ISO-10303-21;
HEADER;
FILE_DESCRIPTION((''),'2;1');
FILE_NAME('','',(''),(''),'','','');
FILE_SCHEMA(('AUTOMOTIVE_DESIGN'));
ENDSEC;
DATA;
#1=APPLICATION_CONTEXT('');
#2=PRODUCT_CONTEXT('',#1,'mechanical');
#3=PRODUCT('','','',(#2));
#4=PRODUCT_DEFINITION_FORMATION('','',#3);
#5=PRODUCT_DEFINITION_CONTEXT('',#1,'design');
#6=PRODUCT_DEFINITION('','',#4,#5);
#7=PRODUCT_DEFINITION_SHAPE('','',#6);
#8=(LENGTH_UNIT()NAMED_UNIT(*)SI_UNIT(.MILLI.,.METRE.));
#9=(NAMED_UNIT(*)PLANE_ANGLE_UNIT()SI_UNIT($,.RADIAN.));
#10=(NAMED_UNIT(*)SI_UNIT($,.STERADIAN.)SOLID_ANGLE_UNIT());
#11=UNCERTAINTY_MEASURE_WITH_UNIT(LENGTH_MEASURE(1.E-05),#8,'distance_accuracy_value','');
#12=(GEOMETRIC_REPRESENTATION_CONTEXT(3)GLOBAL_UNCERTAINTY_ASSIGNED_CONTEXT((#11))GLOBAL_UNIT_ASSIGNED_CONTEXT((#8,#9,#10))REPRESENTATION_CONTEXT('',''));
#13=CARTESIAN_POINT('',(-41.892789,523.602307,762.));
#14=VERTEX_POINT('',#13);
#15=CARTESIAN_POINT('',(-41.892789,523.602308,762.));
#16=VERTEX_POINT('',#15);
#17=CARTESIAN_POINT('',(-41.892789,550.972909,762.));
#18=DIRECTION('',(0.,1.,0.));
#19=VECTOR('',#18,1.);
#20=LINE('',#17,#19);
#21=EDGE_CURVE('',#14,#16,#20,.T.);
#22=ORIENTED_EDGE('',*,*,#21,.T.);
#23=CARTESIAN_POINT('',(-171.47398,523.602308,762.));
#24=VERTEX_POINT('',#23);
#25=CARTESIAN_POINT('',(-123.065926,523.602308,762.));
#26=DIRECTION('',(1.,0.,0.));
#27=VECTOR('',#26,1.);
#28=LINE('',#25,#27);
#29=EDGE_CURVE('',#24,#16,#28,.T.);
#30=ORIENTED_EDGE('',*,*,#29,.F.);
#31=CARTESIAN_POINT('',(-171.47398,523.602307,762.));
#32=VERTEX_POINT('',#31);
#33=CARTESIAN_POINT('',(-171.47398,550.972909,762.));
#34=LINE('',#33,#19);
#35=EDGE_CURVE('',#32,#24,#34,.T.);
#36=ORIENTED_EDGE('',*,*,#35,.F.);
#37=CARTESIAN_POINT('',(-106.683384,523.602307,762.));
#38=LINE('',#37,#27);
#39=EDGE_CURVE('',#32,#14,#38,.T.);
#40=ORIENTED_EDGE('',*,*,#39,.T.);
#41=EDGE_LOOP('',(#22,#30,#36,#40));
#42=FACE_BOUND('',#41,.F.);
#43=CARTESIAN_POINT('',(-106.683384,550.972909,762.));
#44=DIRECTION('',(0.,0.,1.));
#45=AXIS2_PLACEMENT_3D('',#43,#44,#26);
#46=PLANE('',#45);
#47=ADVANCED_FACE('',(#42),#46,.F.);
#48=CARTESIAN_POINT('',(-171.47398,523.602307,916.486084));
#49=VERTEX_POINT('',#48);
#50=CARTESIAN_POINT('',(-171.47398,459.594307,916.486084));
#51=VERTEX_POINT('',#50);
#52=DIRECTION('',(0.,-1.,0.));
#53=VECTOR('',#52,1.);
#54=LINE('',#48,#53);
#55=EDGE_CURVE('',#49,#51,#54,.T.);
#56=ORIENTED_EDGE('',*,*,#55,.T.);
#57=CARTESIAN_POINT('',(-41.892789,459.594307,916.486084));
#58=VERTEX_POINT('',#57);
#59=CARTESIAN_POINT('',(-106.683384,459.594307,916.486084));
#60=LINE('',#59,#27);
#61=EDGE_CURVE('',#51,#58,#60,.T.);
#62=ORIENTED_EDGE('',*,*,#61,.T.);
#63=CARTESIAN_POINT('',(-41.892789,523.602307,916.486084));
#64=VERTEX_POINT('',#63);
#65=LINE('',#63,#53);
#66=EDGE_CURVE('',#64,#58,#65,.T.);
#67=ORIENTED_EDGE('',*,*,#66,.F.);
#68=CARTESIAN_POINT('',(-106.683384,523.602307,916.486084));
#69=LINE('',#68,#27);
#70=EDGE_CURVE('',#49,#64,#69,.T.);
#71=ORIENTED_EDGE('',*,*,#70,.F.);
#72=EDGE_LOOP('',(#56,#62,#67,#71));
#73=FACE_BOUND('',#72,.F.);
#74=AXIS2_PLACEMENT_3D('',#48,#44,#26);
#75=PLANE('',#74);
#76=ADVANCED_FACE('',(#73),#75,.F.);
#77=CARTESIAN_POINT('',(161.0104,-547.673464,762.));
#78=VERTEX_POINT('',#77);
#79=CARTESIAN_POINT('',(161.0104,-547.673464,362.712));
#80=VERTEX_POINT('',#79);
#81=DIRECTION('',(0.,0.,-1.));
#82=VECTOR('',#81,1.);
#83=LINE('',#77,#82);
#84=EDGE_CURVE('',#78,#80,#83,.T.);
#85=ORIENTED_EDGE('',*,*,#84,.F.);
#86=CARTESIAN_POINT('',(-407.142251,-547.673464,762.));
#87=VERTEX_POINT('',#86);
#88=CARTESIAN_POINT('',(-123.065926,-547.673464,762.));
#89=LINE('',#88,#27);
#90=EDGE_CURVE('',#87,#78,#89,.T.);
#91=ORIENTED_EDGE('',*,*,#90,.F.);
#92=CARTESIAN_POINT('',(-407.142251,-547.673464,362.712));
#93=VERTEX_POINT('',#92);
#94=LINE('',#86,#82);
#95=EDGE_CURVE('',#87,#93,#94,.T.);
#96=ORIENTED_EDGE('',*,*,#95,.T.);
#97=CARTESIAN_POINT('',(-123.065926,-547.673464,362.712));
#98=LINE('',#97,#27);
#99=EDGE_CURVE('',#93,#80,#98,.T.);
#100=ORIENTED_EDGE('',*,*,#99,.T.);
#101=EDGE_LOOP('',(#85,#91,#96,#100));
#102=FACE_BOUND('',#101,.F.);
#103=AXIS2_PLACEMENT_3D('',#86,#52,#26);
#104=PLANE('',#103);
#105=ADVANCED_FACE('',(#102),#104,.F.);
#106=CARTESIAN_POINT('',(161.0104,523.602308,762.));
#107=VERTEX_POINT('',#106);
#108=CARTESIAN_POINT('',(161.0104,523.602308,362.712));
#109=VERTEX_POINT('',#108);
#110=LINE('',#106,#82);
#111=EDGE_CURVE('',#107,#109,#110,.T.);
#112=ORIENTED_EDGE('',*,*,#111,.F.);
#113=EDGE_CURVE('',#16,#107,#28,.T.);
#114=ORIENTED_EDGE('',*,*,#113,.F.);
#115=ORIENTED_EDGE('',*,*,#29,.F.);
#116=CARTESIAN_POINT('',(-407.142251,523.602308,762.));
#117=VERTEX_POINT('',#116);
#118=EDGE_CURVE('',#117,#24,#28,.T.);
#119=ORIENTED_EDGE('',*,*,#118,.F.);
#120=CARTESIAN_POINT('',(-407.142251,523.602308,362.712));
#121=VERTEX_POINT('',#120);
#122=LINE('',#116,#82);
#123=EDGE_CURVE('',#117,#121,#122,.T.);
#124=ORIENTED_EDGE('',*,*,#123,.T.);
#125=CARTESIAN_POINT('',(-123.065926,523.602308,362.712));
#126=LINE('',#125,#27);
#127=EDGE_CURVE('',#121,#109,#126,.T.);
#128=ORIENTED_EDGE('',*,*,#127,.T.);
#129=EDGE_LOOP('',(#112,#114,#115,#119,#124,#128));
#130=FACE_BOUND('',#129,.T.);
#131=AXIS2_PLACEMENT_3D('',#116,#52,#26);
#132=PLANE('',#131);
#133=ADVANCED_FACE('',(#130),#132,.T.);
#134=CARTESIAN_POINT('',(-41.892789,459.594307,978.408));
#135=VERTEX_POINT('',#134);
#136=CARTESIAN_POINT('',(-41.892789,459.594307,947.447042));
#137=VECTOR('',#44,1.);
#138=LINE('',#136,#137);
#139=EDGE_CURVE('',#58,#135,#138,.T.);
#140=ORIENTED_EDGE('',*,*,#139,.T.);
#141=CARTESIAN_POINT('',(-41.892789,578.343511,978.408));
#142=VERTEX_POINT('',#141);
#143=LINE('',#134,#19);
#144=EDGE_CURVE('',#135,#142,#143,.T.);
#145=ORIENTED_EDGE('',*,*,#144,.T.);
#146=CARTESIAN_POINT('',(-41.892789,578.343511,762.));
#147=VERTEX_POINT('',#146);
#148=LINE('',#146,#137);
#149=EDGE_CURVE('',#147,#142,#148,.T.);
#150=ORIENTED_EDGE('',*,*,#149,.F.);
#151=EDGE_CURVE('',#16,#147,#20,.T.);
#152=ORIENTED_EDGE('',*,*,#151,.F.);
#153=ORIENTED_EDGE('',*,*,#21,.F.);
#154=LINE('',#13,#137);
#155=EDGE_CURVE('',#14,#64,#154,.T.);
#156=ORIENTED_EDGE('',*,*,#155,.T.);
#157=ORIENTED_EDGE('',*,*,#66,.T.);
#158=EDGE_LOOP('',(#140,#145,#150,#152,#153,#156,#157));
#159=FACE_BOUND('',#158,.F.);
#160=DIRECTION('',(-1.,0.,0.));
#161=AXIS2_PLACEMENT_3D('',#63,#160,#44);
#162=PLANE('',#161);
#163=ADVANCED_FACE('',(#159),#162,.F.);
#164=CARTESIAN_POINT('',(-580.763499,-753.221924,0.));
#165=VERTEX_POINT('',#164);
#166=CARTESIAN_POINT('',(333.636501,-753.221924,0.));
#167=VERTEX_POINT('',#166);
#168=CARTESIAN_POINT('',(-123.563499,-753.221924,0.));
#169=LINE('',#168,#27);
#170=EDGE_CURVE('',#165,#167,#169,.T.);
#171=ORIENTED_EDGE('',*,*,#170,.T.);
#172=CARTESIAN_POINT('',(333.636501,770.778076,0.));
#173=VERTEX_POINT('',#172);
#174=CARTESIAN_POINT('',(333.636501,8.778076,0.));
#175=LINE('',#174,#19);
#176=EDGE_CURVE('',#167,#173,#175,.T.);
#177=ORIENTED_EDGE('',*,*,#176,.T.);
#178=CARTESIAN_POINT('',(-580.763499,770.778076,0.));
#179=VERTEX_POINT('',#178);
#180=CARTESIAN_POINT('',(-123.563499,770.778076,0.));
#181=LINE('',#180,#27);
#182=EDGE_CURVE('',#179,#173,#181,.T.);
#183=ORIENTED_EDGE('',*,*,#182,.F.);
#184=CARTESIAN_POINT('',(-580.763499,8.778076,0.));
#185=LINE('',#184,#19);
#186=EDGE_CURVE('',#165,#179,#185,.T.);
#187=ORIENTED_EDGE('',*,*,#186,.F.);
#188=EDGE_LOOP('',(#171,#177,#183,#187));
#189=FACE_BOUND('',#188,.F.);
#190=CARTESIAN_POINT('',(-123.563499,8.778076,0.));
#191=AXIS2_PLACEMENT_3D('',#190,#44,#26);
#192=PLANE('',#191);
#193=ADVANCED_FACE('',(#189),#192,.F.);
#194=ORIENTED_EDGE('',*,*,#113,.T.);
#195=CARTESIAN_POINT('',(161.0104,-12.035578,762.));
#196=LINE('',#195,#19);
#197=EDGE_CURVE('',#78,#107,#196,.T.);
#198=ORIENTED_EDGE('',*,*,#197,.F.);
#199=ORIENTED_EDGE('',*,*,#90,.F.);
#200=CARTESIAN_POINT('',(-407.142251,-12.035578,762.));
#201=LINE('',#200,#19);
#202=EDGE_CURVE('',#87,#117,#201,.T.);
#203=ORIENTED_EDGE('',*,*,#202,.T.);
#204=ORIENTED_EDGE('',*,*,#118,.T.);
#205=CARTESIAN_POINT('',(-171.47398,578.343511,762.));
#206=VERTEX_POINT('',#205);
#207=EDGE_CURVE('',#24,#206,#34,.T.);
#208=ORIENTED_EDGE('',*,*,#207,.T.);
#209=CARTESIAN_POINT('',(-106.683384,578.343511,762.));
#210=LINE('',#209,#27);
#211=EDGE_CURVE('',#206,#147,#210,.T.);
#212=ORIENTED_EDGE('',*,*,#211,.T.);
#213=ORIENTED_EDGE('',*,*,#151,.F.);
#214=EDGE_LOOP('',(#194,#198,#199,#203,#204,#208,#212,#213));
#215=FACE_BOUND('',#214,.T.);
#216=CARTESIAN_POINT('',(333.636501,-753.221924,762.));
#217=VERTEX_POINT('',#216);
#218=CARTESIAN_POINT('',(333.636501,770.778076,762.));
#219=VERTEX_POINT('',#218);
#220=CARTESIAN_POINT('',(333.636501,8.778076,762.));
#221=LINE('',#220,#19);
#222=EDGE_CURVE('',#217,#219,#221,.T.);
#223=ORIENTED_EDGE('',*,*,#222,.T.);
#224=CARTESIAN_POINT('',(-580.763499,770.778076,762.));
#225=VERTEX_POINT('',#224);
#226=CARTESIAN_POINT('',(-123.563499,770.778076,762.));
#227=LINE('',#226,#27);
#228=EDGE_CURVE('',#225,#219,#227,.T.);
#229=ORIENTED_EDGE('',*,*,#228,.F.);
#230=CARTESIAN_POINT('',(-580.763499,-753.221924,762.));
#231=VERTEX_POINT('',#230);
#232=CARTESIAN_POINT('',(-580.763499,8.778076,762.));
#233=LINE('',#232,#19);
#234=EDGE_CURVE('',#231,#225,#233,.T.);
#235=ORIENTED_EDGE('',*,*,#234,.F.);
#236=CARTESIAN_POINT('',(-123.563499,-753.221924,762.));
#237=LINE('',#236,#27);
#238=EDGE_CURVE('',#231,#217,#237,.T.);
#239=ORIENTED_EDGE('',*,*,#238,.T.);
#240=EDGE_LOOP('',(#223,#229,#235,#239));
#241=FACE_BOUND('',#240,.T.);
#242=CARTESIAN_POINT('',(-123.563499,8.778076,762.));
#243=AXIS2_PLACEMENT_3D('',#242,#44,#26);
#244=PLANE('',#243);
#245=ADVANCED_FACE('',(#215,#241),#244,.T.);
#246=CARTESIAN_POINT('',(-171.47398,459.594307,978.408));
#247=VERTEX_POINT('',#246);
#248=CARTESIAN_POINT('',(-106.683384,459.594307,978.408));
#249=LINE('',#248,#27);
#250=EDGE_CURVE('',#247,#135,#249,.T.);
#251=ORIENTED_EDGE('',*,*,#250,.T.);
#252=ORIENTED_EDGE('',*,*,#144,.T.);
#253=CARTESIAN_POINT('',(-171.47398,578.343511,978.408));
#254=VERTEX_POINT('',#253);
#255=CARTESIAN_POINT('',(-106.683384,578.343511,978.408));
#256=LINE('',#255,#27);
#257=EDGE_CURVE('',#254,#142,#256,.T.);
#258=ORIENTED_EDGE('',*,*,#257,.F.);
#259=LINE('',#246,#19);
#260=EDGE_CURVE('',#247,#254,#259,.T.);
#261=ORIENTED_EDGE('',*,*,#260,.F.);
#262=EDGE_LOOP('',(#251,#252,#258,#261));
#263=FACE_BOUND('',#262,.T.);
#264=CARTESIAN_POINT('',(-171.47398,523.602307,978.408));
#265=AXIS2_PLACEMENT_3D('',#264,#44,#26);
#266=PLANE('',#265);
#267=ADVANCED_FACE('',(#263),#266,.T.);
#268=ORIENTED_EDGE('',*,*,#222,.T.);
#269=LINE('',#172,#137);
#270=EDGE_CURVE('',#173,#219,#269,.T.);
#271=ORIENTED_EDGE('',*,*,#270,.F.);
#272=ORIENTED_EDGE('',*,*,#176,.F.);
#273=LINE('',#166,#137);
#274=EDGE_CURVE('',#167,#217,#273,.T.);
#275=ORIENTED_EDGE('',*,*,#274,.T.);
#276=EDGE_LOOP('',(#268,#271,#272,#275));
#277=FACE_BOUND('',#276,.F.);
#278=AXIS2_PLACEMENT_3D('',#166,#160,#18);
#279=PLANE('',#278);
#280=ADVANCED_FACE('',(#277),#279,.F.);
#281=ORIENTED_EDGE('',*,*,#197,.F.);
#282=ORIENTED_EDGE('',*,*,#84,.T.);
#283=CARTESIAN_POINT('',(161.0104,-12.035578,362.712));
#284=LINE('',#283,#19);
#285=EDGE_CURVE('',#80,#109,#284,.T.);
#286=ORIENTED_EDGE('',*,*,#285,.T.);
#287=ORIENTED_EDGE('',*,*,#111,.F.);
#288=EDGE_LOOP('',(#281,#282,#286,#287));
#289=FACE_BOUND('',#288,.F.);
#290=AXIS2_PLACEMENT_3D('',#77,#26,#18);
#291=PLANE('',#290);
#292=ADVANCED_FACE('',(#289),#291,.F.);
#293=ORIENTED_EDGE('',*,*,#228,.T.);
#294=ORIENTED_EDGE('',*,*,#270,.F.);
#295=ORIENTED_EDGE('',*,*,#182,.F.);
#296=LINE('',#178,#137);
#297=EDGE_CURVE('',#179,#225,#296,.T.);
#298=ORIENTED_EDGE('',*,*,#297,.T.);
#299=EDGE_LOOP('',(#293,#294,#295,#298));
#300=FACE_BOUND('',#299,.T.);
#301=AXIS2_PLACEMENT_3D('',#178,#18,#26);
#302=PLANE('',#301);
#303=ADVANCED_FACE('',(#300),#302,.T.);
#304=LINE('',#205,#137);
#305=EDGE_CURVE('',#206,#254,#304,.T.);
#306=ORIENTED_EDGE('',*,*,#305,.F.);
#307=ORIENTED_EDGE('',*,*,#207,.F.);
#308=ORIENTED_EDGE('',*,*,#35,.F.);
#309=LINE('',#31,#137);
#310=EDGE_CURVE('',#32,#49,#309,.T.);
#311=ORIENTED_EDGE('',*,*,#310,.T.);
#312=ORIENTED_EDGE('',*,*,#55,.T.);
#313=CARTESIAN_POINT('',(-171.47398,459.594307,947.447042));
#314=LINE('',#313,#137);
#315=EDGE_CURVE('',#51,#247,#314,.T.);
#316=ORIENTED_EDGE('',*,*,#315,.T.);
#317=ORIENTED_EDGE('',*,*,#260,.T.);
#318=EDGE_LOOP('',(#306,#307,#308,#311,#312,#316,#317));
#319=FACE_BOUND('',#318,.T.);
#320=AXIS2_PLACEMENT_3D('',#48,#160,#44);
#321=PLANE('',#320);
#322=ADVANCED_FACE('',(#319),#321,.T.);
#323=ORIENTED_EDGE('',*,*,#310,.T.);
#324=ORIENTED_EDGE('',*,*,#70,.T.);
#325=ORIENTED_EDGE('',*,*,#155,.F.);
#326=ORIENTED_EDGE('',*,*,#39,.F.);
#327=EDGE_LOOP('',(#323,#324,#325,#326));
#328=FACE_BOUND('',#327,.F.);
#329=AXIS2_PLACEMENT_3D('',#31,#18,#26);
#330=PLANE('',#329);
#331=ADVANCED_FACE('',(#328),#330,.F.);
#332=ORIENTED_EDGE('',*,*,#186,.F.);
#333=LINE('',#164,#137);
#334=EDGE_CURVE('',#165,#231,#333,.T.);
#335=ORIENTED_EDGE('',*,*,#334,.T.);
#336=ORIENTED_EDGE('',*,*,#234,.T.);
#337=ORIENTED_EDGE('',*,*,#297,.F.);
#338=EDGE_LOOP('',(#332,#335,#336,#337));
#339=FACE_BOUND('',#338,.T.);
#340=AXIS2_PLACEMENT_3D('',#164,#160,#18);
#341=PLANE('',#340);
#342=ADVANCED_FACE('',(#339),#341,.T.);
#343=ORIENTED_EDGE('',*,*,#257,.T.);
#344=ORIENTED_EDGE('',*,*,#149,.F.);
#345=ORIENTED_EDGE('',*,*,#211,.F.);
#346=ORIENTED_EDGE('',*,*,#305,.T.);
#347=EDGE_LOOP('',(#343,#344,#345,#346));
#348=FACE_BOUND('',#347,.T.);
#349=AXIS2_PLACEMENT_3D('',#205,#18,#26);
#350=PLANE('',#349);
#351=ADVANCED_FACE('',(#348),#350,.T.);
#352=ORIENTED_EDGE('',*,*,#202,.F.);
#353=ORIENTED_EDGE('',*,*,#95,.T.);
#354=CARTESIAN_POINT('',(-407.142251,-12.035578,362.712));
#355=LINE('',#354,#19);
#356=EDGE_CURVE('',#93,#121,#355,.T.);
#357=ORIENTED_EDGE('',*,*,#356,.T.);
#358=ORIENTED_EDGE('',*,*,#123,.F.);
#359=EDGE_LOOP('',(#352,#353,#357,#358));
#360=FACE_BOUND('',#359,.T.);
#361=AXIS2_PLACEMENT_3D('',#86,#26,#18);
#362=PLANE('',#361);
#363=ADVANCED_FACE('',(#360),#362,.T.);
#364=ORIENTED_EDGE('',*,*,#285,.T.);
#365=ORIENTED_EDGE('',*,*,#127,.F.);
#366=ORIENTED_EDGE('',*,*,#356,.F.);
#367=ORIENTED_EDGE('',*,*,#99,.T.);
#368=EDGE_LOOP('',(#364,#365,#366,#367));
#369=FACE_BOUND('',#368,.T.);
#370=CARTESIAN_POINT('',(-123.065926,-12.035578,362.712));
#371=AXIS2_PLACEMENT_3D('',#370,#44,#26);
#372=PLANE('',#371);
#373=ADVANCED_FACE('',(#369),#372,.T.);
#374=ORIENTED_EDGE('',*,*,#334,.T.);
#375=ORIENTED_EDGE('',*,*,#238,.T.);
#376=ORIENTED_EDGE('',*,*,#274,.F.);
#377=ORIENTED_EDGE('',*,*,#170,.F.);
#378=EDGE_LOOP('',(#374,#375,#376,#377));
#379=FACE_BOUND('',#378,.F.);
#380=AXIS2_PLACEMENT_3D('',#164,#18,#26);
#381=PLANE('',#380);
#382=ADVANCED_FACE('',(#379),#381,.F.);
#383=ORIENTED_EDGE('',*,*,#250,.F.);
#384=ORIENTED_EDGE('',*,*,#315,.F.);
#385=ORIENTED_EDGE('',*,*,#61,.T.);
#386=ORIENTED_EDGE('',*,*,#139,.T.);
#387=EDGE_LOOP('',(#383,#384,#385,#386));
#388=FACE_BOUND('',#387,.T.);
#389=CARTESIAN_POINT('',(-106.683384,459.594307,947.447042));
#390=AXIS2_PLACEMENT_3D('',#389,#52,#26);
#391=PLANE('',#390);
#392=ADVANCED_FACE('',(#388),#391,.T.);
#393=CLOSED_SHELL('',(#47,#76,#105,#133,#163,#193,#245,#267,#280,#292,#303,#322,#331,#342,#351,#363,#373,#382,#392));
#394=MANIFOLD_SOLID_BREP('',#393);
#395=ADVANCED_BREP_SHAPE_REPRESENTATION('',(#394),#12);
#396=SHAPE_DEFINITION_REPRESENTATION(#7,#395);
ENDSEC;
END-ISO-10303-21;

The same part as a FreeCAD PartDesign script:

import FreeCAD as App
import Part
import Sketcher
Q = App.Units.Quantity


def add_polygon(sketch, points):
    """Adds a closed chain of lines whose ends are joined by coincident constraints."""
    first, n = sketch.GeometryCount, len(points)
    for a, b in zip(points, points[1:] + points[:1]):
        sketch.addGeometry(Part.LineSegment(App.Vector(*a, 0), App.Vector(*b, 0)), False)
    for i in range(n):
        sketch.addConstraint(Sketcher.Constraint("Coincident", first + i, 2, first + (i + 1) % n, 1))

doc = App.newDocument("Part")
body = doc.addObject("PartDesign::Body", "Body")

# Sketch on XY plane
sketch1 = doc.addObject("Sketcher::SketchObject", "Sketch")
body.addObject(sketch1)
sketch1.AttachmentSupport = (doc.XY_Plane, [""])
sketch1.MapMode = "FlatFace"
add_polygon(sketch1, [(-581, 771), (-581, -753), (334, -753), (334, 771)])  # lines 0-3
sketch1.addConstraint([
    Sketcher.Constraint("Vertical", 0),
    Sketcher.Constraint("Horizontal", 1),
    Sketcher.Constraint("Vertical", 2),
    Sketcher.Constraint("Horizontal", 3),
    Sketcher.Constraint("DistanceX", 1, 1, 1, 2, Q("36 in")),
    Sketcher.Constraint("DistanceY", 0, 2, 0, 1, Q("60 in")),
    Sketcher.Constraint("DistanceX", 0, 2, -1, 1, Q("580.763499 mm")),
    Sketcher.Constraint("DistanceY", 0, 2, -1, 1, Q("753.221924 mm")),
])
pad1 = doc.addObject("PartDesign::Pad", "Pad")
body.addObject(pad1)
pad1.Profile = sketch1
pad1.Length = Q("30 in")

# Sketch on XY plane
sketch2 = doc.addObject("Sketcher::SketchObject", "Sketch001")
body.addObject(sketch2)
sketch2.AttachmentSupport = (doc.XY_Plane, [""])
sketch2.MapMode = "FlatFace"
sketch2.AttachmentOffset = App.Placement(App.Vector(0, 0, 30 * 25.4), App.Rotation())
add_polygon(sketch2, [(-407, 524), (-407, -548), (161, -548), (161, 524)])  # lines 0-3
sketch2.addConstraint([
    Sketcher.Constraint("Vertical", 0),
    Sketcher.Constraint("Horizontal", 1),
    Sketcher.Constraint("Vertical", 2),
    Sketcher.Constraint("Horizontal", 3),
    Sketcher.Constraint("DistanceX", 1, 1, 1, 2, Q("568.152651 mm")),
    Sketcher.Constraint("DistanceY", 0, 2, 0, 1, Q("1071.275771 mm")),
    Sketcher.Constraint("DistanceX", -1, 1, 1, 2, Q("161.0104 mm")),
    Sketcher.Constraint("DistanceY", 0, 2, -1, 1, Q("547.673464 mm")),
])
pocket1 = doc.addObject("PartDesign::Pocket", "Pocket")
body.addObject(pocket1)
pocket1.Profile = sketch2
pocket1.Length = Q("15.72 in")

# Sketch on XY plane
sketch3 = doc.addObject("Sketcher::SketchObject", "Sketch002")
body.addObject(sketch3)
sketch3.AttachmentSupport = (doc.XY_Plane, [""])
sketch3.MapMode = "FlatFace"
sketch3.AttachmentOffset = App.Placement(App.Vector(0, 0, 30 * 25.4), App.Rotation())
add_polygon(sketch3, [(-171, 578), (-171, 524), (-42, 524), (-42, 578)])  # lines 0-3
sketch3.addConstraint([
    Sketcher.Constraint("Vertical", 0),
    Sketcher.Constraint("Horizontal", 1),
    Sketcher.Constraint("Vertical", 2),
    Sketcher.Constraint("Horizontal", 3),
    Sketcher.Constraint("DistanceX", 1, 1, 1, 2, Q("129.581191 mm")),
    Sketcher.Constraint("DistanceY", 0, 2, 0, 1, Q("54.741204 mm")),
    Sketcher.Constraint("DistanceX", 0, 2, -1, 1, Q("171.47398 mm")),
    Sketcher.Constraint("DistanceY", -1, 1, 2, 2, Q("578.343511 mm")),
])
pad2 = doc.addObject("PartDesign::Pad", "Pad001")
body.addObject(pad2)
pad2.Profile = sketch3
pad2.Length = Q("8.52 in")

# Sketch on XZ plane
sketch4 = doc.addObject("Sketcher::SketchObject", "Sketch003")
body.addObject(sketch4)
sketch4.AttachmentSupport = (doc.XZ_Plane, [""])
sketch4.MapMode = "FlatFace"
sketch4.AttachmentOffset = App.Placement(App.Vector(0, 0, -523.602307), App.Rotation())
add_polygon(sketch4, [(-171, 978), (-171, 916), (-42, 916), (-42, 978)])  # lines 0-3
sketch4.addConstraint([
    Sketcher.Constraint("Vertical", 0),
    Sketcher.Constraint("Horizontal", 1),
    Sketcher.Constraint("Vertical", 2),
    Sketcher.Constraint("Horizontal", 3),
    Sketcher.Constraint("DistanceY", -1, 1, 2, 2, Q("38.52 in")),
    Sketcher.Constraint("DistanceX", 1, 1, 1, 2, Q("129.581191 mm")),
    Sketcher.Constraint("DistanceY", 0, 2, 0, 1, Q("61.921916 mm")),
    Sketcher.Constraint("DistanceX", 0, 2, -1, 1, Q("171.47398 mm")),
])
pad3 = doc.addObject("PartDesign::Pad", "Pad002")
body.addObject(pad3)
pad3.Profile = sketch4
pad3.Length = Q("2.52 in")

doc.recompute()
